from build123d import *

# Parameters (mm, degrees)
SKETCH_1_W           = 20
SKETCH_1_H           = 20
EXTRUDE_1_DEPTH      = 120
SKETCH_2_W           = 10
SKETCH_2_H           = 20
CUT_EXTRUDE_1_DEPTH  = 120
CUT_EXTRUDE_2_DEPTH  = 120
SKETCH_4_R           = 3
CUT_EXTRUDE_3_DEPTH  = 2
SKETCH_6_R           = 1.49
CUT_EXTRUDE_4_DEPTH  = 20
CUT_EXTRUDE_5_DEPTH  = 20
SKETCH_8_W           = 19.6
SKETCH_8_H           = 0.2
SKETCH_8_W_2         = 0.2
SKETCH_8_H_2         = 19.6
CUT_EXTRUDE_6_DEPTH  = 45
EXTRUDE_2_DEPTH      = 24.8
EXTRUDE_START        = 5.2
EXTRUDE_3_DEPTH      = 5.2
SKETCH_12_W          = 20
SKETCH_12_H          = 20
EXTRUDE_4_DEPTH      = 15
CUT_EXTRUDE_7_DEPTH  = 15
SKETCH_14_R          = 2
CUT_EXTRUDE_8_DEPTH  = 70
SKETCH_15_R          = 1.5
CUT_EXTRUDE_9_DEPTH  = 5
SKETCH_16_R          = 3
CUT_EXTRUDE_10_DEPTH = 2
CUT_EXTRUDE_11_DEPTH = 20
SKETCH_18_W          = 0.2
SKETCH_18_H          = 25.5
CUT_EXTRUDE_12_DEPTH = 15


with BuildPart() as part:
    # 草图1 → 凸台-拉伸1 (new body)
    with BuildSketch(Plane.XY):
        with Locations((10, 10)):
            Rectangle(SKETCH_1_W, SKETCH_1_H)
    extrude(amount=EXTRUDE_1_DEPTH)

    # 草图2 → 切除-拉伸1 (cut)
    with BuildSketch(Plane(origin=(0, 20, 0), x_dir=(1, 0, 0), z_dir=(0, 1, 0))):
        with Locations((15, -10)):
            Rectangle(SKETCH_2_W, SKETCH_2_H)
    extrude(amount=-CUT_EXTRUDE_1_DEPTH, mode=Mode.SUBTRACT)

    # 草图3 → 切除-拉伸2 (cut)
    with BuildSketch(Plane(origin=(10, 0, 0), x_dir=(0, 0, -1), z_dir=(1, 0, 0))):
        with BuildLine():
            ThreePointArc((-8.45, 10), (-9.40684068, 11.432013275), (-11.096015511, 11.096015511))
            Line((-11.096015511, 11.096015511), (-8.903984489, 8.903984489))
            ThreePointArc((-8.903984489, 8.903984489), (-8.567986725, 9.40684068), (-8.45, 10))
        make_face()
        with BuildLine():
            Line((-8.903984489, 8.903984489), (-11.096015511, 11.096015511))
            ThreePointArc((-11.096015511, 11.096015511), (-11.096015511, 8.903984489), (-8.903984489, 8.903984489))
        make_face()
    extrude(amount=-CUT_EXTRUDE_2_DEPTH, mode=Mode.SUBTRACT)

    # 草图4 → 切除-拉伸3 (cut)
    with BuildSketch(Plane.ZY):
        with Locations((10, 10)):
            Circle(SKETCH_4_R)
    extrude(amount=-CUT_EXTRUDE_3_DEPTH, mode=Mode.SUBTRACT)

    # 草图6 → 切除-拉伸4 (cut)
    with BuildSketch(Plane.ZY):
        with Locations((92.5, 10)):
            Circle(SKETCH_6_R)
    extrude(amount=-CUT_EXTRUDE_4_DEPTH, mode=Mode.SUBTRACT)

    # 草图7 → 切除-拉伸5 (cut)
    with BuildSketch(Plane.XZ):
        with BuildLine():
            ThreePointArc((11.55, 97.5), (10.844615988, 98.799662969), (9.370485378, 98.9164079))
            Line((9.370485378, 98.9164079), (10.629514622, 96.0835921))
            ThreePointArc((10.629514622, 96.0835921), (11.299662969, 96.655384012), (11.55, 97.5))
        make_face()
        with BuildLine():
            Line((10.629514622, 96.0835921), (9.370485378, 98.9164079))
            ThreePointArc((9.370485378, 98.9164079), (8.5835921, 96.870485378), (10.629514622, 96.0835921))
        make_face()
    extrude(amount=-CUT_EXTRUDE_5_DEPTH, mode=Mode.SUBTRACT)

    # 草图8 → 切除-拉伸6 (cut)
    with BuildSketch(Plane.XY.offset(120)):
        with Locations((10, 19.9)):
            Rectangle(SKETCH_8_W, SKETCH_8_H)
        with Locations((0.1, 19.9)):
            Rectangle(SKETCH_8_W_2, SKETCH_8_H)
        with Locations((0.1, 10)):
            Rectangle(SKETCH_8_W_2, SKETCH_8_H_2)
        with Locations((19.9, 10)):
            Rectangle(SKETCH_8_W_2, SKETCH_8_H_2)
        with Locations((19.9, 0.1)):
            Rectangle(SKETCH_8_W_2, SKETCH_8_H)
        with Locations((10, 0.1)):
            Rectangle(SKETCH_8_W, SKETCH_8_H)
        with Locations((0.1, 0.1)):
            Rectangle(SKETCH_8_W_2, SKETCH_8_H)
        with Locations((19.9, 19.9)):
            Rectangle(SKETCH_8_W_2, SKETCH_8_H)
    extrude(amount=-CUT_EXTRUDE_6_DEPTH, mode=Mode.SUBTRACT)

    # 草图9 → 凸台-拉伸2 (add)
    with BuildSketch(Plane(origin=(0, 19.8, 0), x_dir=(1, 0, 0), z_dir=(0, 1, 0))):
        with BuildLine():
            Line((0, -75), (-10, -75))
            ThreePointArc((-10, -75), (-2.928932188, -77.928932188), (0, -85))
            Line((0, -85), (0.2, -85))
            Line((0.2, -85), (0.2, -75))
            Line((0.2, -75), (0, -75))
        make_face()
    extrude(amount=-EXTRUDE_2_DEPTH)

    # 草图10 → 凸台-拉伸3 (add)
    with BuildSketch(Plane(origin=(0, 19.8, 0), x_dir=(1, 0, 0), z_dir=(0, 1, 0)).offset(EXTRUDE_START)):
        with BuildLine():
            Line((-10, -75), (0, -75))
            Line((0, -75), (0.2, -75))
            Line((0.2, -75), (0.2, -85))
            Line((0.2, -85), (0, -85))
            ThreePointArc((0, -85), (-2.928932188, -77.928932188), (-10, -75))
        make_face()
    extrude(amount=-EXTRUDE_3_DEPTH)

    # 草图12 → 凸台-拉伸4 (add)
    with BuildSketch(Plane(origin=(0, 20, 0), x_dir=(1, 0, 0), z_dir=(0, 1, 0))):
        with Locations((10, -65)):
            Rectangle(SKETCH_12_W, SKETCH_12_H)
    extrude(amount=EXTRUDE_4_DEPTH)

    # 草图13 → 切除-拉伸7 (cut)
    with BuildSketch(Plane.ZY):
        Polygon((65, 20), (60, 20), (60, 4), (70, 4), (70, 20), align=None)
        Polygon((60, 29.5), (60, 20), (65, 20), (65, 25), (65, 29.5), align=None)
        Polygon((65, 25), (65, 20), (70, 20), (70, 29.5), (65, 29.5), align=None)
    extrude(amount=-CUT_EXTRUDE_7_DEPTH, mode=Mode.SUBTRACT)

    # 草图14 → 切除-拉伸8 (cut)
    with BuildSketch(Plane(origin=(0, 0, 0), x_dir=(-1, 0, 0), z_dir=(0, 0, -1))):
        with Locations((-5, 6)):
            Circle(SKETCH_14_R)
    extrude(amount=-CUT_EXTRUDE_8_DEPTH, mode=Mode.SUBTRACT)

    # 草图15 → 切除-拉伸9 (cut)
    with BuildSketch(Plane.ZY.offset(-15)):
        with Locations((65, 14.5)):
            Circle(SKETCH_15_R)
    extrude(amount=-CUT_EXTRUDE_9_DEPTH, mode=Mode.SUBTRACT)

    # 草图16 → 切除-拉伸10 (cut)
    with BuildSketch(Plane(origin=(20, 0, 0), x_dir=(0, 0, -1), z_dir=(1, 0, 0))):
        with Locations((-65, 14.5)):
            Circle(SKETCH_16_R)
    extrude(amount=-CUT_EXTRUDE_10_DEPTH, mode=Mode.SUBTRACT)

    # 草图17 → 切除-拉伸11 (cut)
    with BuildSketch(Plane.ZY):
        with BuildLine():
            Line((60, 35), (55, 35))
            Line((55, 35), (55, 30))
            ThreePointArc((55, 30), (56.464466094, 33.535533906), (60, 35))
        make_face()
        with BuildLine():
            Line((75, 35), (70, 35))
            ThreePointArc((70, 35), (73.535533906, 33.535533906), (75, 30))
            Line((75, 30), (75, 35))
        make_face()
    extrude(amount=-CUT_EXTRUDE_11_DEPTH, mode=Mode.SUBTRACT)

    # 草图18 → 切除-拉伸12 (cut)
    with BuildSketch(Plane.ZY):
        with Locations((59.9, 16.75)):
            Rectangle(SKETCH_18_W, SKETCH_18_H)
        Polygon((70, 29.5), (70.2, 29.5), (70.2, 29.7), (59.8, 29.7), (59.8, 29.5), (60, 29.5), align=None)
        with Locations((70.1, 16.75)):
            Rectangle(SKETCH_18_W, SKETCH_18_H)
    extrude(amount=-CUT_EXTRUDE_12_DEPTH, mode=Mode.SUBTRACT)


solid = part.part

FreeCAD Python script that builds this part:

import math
import FreeCAD as App
import Part
import Sketcher
from FreeCAD import Vector


def add_polygon(sketch, points):
    """Adds a closed chain of lines whose ends are joined by coincident constraints."""
    first, n = sketch.GeometryCount, len(points)
    for a, b in zip(points, points[1:] + points[:1]):
        sketch.addGeometry(Part.LineSegment(App.Vector(*a, 0), App.Vector(*b, 0)), False)
    for i in range(n):
        sketch.addConstraint(Sketcher.Constraint("Coincident", first + i, 2, first + (i + 1) % n, 1))

doc = App.newDocument("Part")
params = doc.addObject("Spreadsheet::Sheet", "Params")
for row, (alias, value) in enumerate([
    ("sketch1_width", "20 mm"),
    ("pad1_length", "120 mm"),
    ("sketch2_width", "10 mm"),
    ("sketch2_height", "20 mm"),
    ("pocket1_length", "120 mm"),
    ("sketch3_radius", "1.55 mm"),
    ("pocket2_length", "120 mm"),
    ("sketch4_diameter", "6 mm"),
    ("pocket3_length", "2 mm"),
    ("sketch5_diameter", "2.98 mm"),
    ("pocket4_length", "20 mm"),
    ("sketch6_radius", "1.55 mm"),
    ("pocket5_length", "20 mm"),
    ("sketch7_width", "20 mm"),
    ("sketch7_width2", "19.6 mm"),
    ("pocket6_length", "45 mm"),
    ("sketch8_radius", "10 mm"),
    ("sketch8_height", "10 mm"),
    ("sketch8_width", "0.2 mm"),
    ("pad2_length", "24.8 mm"),
    ("sketch9_radius", "10 mm"),
    ("sketch9_height", "10 mm"),
    ("sketch9_width", "10.2 mm"),
    ("pad3_length", "5.2 mm"),
    ("sketch10_width", "20 mm"),
    ("pad4_length", "15 mm"),
    ("sketch11_height", "10 mm"),
    ("sketch11_width", "25.5 mm"),
    ("pocket7_length", "15 mm"),
    ("sketch12_diameter", "4 mm"),
    ("pocket8_length", "70 mm"),
    ("sketch13_diameter", "3 mm"),
    ("pocket9_length", "5 mm"),
    ("sketch14_diameter", "6 mm"),
    ("pocket10_length", "2 mm"),
    ("sketch15_radius", "5 mm"),
    ("pocket11_length", "20 mm"),
    ("sketch16_height", "10 mm"),
    ("sketch16_width", "25.5 mm"),
    ("sketch16_width2", "25.7 mm"),
    ("sketch16_height2", "0.2 mm"),
    ("pocket12_length", "15 mm"),
], start=1):
    params.set(f"A{row}", alias)
    params.set(f"B{row}", "=" + value)
    params.setAlias(f"B{row}", alias)

body = doc.addObject("PartDesign::Body", "Body")

sketch1 = body.newObject("Sketcher::SketchObject", "Sketch")
sketch1.AttachmentSupport = (doc.getObject("XY_Plane"), [""])
sketch1.MapMode = "FlatFace"
add_polygon(sketch1, [(0, 20), (0, 0), (20, 0), (20, 20)])
sketch1.addConstraint([
    Sketcher.Constraint("Vertical", 0),
    Sketcher.Constraint("Horizontal", 1),
    Sketcher.Constraint("Vertical", 2),
    Sketcher.Constraint("Horizontal", 3),
    Sketcher.Constraint("Coincident", 0, 2, -1, 1),
    Sketcher.Constraint("Equal", 3, 0),
    Sketcher.Constraint("DistanceX", 1, 1, 1, 2, 20.0),
])
sketch1.setExpression("Constraints[10]", "Params.sketch1_width")
pad1 = body.newObject("PartDesign::Pad", "Pad")
pad1.Profile = sketch1
pad1.setExpression("Length", "Params.pad1_length")

sketch2 = body.newObject("Sketcher::SketchObject", "Sketch001")
sketch2.AttachmentSupport = (doc.getObject("XZ_Plane"), [""])
sketch2.MapMode = "FlatFace"
sketch2.AttachmentOffset = App.Placement(Vector(0, 0, -20), App.Rotation())
add_polygon(sketch2, [(10, 0), (10, 20), (20, 20), (20, 0)])
sketch2.addConstraint([
    Sketcher.Constraint("Vertical", 0),
    Sketcher.Constraint("Horizontal", 1),
    Sketcher.Constraint("Vertical", 2),
    Sketcher.Constraint("Horizontal", 3),
    Sketcher.Constraint("PointOnObject", 2, 2, -1),
    Sketcher.Constraint("DistanceX", 1, 1, 1, 2, 10.0),
    Sketcher.Constraint("DistanceY", 0, 1, 0, 2, 20.0),
    Sketcher.Constraint("DistanceX", -1, 1, 0, 2, 10.0),
])
sketch2.setExpression("Constraints[9]", "Params.sketch2_width")
sketch2.setExpression("Constraints[10]", "Params.sketch2_height")
pocket1 = body.newObject("PartDesign::Pocket", "Pocket")
pocket1.Profile = sketch2
pocket1.setExpression("Length", "Params.pocket1_length")
pocket1.Reversed = True

sketch3 = body.newObject("Sketcher::SketchObject", "Sketch002")
sketch3.AttachmentSupport = (doc.getObject("YZ_Plane"), [""])
sketch3.MapMode = "FlatFace"
sketch3.AttachmentOffset = App.Placement(Vector(0, 0, 10), App.Rotation())
sketch3.addGeometry([
    Part.ArcOfCircle(Part.Circle(Vector(10, 10, 0), Vector(0, 0, 1), 1.6), math.radians(-90), math.radians(45)),
    Part.ArcOfCircle(Part.Circle(Vector(10, 10, 0), Vector(0, 0, 1), 1.6), math.radians(45), math.radians(225)),
    Part.ArcOfCircle(Part.Circle(Vector(10, 10, 0), Vector(0, 0, 1), 1.6), math.radians(-135), math.radians(-90)),
], False)
sketch3.addConstraint([
    Sketcher.Constraint("Tangent", 0, 2, 1, 1),
    Sketcher.Constraint("Tangent", 1, 2, 2, 1),
    Sketcher.Constraint("Tangent", 2, 2, 0, 1),
    Sketcher.Constraint("Vertical", 1, 3, 2, 2),
    Sketcher.Constraint("Radius", 0, 1.55),
    Sketcher.Constraint("DistanceX", -1, 1, 0, 3, 10.0),
    Sketcher.Constraint("DistanceY", -1, 1, 0, 3, 10.0),
    Sketcher.Constraint("DistanceX", 1, 2, 0, 2, 2.192031),
    Sketcher.Constraint("DistanceX", -1, 1, 0, 2, 11.096016),
])
sketch3.setExpression("Constraints[4]", "Params.sketch3_radius")
pocket2 = body.newObject("PartDesign::Pocket", "Pocket001")
pocket2.Profile = sketch3
pocket2.setExpression("Length", "Params.pocket2_length")

sketch4 = body.newObject("Sketcher::SketchObject", "Sketch003")
sketch4.AttachmentSupport = (doc.getObject("YZ_Plane"), [""])
sketch4.MapMode = "FlatFace"
sketch4.addGeometry(Part.Circle(Vector(10, 10, 0), Vector(0, 0, 1), 3), False)
sketch4.addConstraint([
    Sketcher.Constraint("Diameter", 0, 6.0),
    Sketcher.Constraint("DistanceX", -1, 1, 0, 3, 10.0),
    Sketcher.Constraint("DistanceY", -1, 1, 0, 3, 10.0),
])
sketch4.setExpression("Constraints[0]", "Params.sketch4_diameter")
pocket3 = body.newObject("PartDesign::Pocket", "Pocket002")
pocket3.Profile = sketch4
pocket3.setExpression("Length", "Params.pocket3_length")
pocket3.Reversed = True

sketch5 = body.newObject("Sketcher::SketchObject", "Sketch004")
sketch5.AttachmentSupport = (doc.getObject("YZ_Plane"), [""])
sketch5.MapMode = "FlatFace"
sketch5.addGeometry(Part.Circle(Vector(10, 92.5, 0), Vector(0, 0, 1), 1.5), False)
sketch5.addConstraint([
    Sketcher.Constraint("Diameter", 0, 2.98),
    Sketcher.Constraint("DistanceX", -1, 1, 0, 3, 10.0),
    Sketcher.Constraint("DistanceY", -1, 1, 0, 3, 92.5),
])
sketch5.setExpression("Constraints[0]", "Params.sketch5_diameter")
pocket4 = body.newObject("PartDesign::Pocket", "Pocket003")
pocket4.Profile = sketch5
pocket4.setExpression("Length", "Params.pocket4_length")
pocket4.Reversed = True

sketch6 = body.newObject("Sketcher::SketchObject", "Sketch005")
sketch6.AttachmentSupport = (doc.getObject("XZ_Plane"), [""])
sketch6.MapMode = "FlatFace"
sketch6.addGeometry([
    Part.ArcOfCircle(Part.Circle(Vector(10, 97.5, 0), Vector(0, 0, 1), 1.5), math.radians(0), math.radians(114)),
    Part.ArcOfCircle(Part.Circle(Vector(10, 97.5, 0), Vector(0, 0, 1), 1.6), math.radians(114), math.radians(294)),
    Part.ArcOfCircle(Part.Circle(Vector(10, 97.5, 0), Vector(0, 0, 1), 1.5), math.radians(-66), math.radians(0)),
], False)
sketch6.addConstraint([
    Sketcher.Constraint("Tangent", 0, 2, 1, 1),
    Sketcher.Constraint("Tangent", 1, 2, 2, 1),
    Sketcher.Constraint("Tangent", 2, 2, 0, 1),
    Sketcher.Constraint("Horizontal", 1, 3, 2, 2),
    Sketcher.Constraint("Radius", 0, 1.55),
    Sketcher.Constraint("DistanceX", -1, 1, 0, 3, 10.0),
    Sketcher.Constraint("DistanceY", -1, 1, 0, 3, 97.5),
    Sketcher.Constraint("DistanceX", 0, 2, 1, 2, 1.259029),
    Sketcher.Constraint("DistanceX", -1, 1, 0, 2, 9.370485),
])
sketch6.setExpression("Constraints[4]", "Params.sketch6_radius")
pocket5 = body.newObject("PartDesign::Pocket", "Pocket004")
pocket5.Profile = sketch6
pocket5.setExpression("Length", "Params.pocket5_length")

sketch7 = body.newObject("Sketcher::SketchObject", "Sketch006")
sketch7.AttachmentSupport = (doc.getObject("XY_Plane"), [""])
sketch7.MapMode = "FlatFace"
sketch7.AttachmentOffset = App.Placement(Vector(0, 0, 120), App.Rotation())
add_polygon(sketch7, [(20, 0), (20, 20), (0, 20), (0, 0)])
add_polygon(sketch7, [(0, 20), (20, 20), (20, 0), (0, 0)])
sketch7.addConstraint([
    Sketcher.Constraint("Vertical", 0),
    Sketcher.Constraint("Horizontal", 1),
    Sketcher.Constraint("Vertical", 2),
    Sketcher.Constraint("Horizontal", 3),
    Sketcher.Constraint("Horizontal", 4),
    Sketcher.Constraint("Vertical", 5),
    Sketcher.Constraint("Horizontal", 6),
    Sketcher.Constraint("Vertical", 7),
    Sketcher.Constraint("Coincident", 2, 2, -1, 1),
    Sketcher.Constraint("Equal", 3, 0),
    Sketcher.Constraint("Equal", 6, 5),
    Sketcher.Constraint("DistanceX", 1, 2, 1, 1, 20.0),
    Sketcher.Constraint("DistanceX", 4, 1, 4, 2, 19.6),
    Sketcher.Constraint("DistanceX", -1, 1, 4, 2, 19.8),
    Sketcher.Constraint("DistanceY", -1, 1, 4, 2, 19.8),
])
sketch7.setExpression("Constraints[19]", "Params.sketch7_width")
sketch7.setExpression("Constraints[20]", "Params.sketch7_width2")
pocket6 = body.newObject("PartDesign::Pocket", "Pocket005")
pocket6.Profile = sketch7
pocket6.setExpression("Length", "Params.pocket6_length")

sketch8 = body.newObject("Sketcher::SketchObject", "Sketch007")
sketch8.AttachmentSupport = (doc.getObject("XZ_Plane"), [""])
sketch8.MapMode = "FlatFace"
sketch8.AttachmentOffset = App.Placement(Vector(0, 0, -19.8), App.Rotation())
sketch8.addGeometry([
    Part.ArcOfCircle(Part.Circle(Vector(-10, 85, 0), Vector(0, 0, 1), 10), math.radians(-90), math.radians(0)),
    Part.LineSegment(Vector(0, 85, 0), Vector(0.2, 85, 0)),
    Part.LineSegment(Vector(0.2, 85, 0), Vector(0.2, 75, 0)),
    Part.LineSegment(Vector(0.2, 75, 0), Vector(-10, 75, 0)),
], False)
sketch8.addConstraint([
    Sketcher.Constraint("Coincident", 0, 2, 1, 1),
    Sketcher.Constraint("Coincident", 1, 2, 2, 1),
    Sketcher.Constraint("Coincident", 2, 2, 3, 1),
    Sketcher.Constraint("Tangent", 3, 2, 0, 1),
    Sketcher.Constraint("Horizontal", 1),
    Sketcher.Constraint("Vertical", 2),
    Sketcher.Constraint("Horizontal", 3),
    Sketcher.Constraint("PointOnObject", 0, 2, -2),
    Sketcher.Constraint("Radius", 0, 10.0),
    Sketcher.Constraint("DistanceY", 2, 2, 2, 1, 10.0),
    Sketcher.Constraint("DistanceX", 1, 1, 1, 2, 0.2),
    Sketcher.Constraint("DistanceY", -1, 1, 0, 3, 85.0),
])
sketch8.setExpression("Constraints[8]", "Params.sketch8_radius")
sketch8.setExpression("Constraints[9]", "Params.sketch8_height")
sketch8.setExpression("Constraints[10]", "Params.sketch8_width")
pad2 = body.newObject("PartDesign::Pad", "Pad001")
pad2.Profile = sketch8
pad2.setExpression("Length", "Params.pad2_length")

sketch9 = body.newObject("Sketcher::SketchObject", "Sketch008")
sketch9.AttachmentSupport = (doc.getObject("XZ_Plane"), [""])
sketch9.MapMode = "FlatFace"
sketch9.AttachmentOffset = App.Placement(Vector(0, 0, -25), App.Rotation())
sketch9.addGeometry([
    Part.LineSegment(Vector(0.2, 75, 0), Vector(-10, 75, 0)),
    Part.ArcOfCircle(Part.Circle(Vector(-10, 85, 0), Vector(0, 0, 1), 10), math.radians(-90), math.radians(0)),
    Part.LineSegment(Vector(0, 85, 0), Vector(0.2, 85, 0)),
    Part.LineSegment(Vector(0.2, 85, 0), Vector(0.2, 75, 0)),
], False)
sketch9.addConstraint([
    Sketcher.Constraint("Tangent", 0, 2, 1, 1),
    Sketcher.Constraint("Coincident", 1, 2, 2, 1),
    Sketcher.Constraint("Coincident", 2, 2, 3, 1),
    Sketcher.Constraint("Coincident", 3, 2, 0, 1),
    Sketcher.Constraint("Horizontal", 0),
    Sketcher.Constraint("Horizontal", 2),
    Sketcher.Constraint("Vertical", 3),
    Sketcher.Constraint("PointOnObject", 1, 2, -2),
    Sketcher.Constraint("Radius", 1, 10.0),
    Sketcher.Constraint("DistanceY", 3, 2, 3, 1, 10.0),
    Sketcher.Constraint("DistanceX", 0, 2, 0, 1, 10.2),
    Sketcher.Constraint("DistanceY", -1, 1, 1, 3, 85.0),
])
sketch9.setExpression("Constraints[8]", "Params.sketch9_radius")
sketch9.setExpression("Constraints[9]", "Params.sketch9_height")
sketch9.setExpression("Constraints[10]", "Params.sketch9_width")
pad3 = body.newObject("PartDesign::Pad", "Pad002")
pad3.Profile = sketch9
pad3.setExpression("Length", "Params.pad3_length")

sketch10 = body.newObject("Sketcher::SketchObject", "Sketch009")
sketch10.AttachmentSupport = (doc.getObject("XZ_Plane"), [""])
sketch10.MapMode = "FlatFace"
sketch10.AttachmentOffset = App.Placement(Vector(0, 0, -20), App.Rotation())
add_polygon(sketch10, [(0, 55), (0, 75), (20, 75), (20, 55)])
sketch10.addConstraint([
    Sketcher.Constraint("Vertical", 0),
    Sketcher.Constraint("Horizontal", 1),
    Sketcher.Constraint("Vertical", 2),
    Sketcher.Constraint("Horizontal", 3),
    Sketcher.Constraint("PointOnObject", 0, 2, -2),
    Sketcher.Constraint("Equal", 3, 0),
    Sketcher.Constraint("DistanceX", 1, 1, 1, 2, 20.0),
    Sketcher.Constraint("DistanceY", -1, 1, 0, 2, 75.0),
])
sketch10.setExpression("Constraints[10]", "Params.sketch10_width")
pad4 = body.newObject("PartDesign::Pad", "Pad003")
pad4.Profile = sketch10
pad4.setExpression("Length", "Params.pad4_length")
pad4.Reversed = True

sketch11 = body.newObject("Sketcher::SketchObject", "Sketch010")
sketch11.AttachmentSupport = (doc.getObject("YZ_Plane"), [""])
sketch11.MapMode = "FlatFace"
add_polygon(sketch11, [(4, 60), (4, 70), (30, 70), (30, 60)])
sketch11.addConstraint([
    Sketcher.Constraint("Vertical", 0),
    Sketcher.Constraint("Horizontal", 1),
    Sketcher.Constraint("Vertical", 2),
    Sketcher.Constraint("Horizontal", 3),
    Sketcher.Constraint("DistanceY", 0, 1, 0, 2, 10.0),
    Sketcher.Constraint("DistanceX", 1, 1, 1, 2, 25.5),
    Sketcher.Constraint("DistanceX", -1, 1, 0, 2, 4.0),
    Sketcher.Constraint("DistanceY", -1, 1, 0, 2, 70.0),
])
sketch11.setExpression("Constraints[8]", "Params.sketch11_height")
sketch11.setExpression("Constraints[9]", "Params.sketch11_width")
pocket7 = body.newObject("PartDesign::Pocket", "Pocket006")
pocket7.Profile = sketch11
pocket7.setExpression("Length", "Params.pocket7_length")
pocket7.Reversed = True

sketch12 = body.newObject("Sketcher::SketchObject", "Sketch011")
sketch12.AttachmentSupport = (doc.getObject("XY_Plane"), [""])
sketch12.MapMode = "FlatFace"
sketch12.addGeometry(Part.Circle(Vector(5, 6, 0), Vector(0, 0, 1), 2), False)
sketch12.addConstraint([
    Sketcher.Constraint("Diameter", 0, 4.0),
    Sketcher.Constraint("DistanceX", -1, 1, 0, 3, 5.0),
    Sketcher.Constraint("DistanceY", -1, 1, 0, 3, 6.0),
])
sketch12.setExpression("Constraints[0]", "Params.sketch12_diameter")
pocket8 = body.newObject("PartDesign::Pocket", "Pocket007")
pocket8.Profile = sketch12
pocket8.setExpression("Length", "Params.pocket8_length")
pocket8.Reversed = True

sketch13 = body.newObject("Sketcher::SketchObject", "Sketch012")
sketch13.AttachmentSupport = (doc.getObject("YZ_Plane"), [""])
sketch13.MapMode = "FlatFace"
sketch13.AttachmentOffset = App.Placement(Vector(0, 0, 15), App.Rotation())
sketch13.addGeometry(Part.Circle(Vector(14.5, 65, 0), Vector(0, 0, 1), 1.5), False)
sketch13.addConstraint([
    Sketcher.Constraint("Diameter", 0, 3.0),
    Sketcher.Constraint("DistanceY", -1, 1, 0, 3, 65.0),
    Sketcher.Constraint("DistanceX", -1, 1, 0, 3, 14.5),
])
sketch13.setExpression("Constraints[0]", "Params.sketch13_diameter")
pocket9 = body.newObject("PartDesign::Pocket", "Pocket008")
pocket9.Profile = sketch13
pocket9.setExpression("Length", "Params.pocket9_length")
pocket9.Reversed = True

sketch14 = body.newObject("Sketcher::SketchObject", "Sketch013")
sketch14.AttachmentSupport = (doc.getObject("YZ_Plane"), [""])
sketch14.MapMode = "FlatFace"
sketch14.AttachmentOffset = App.Placement(Vector(0, 0, 20), App.Rotation())
sketch14.addGeometry(Part.Circle(Vector(14.5, 65, 0), Vector(0, 0, 1), 3), False)
sketch14.addConstraint([
    Sketcher.Constraint("Diameter", 0, 6.0),
    Sketcher.Constraint("DistanceY", -1, 1, 0, 3, 65.0),
    Sketcher.Constraint("DistanceX", -1, 1, 0, 3, 14.5),
])
sketch14.setExpression("Constraints[0]", "Params.sketch14_diameter")
pocket10 = body.newObject("PartDesign::Pocket", "Pocket009")
pocket10.Profile = sketch14
pocket10.setExpression("Length", "Params.pocket10_length")

sketch15 = body.newObject("Sketcher::SketchObject", "Sketch014")
sketch15.AttachmentSupport = (doc.getObject("YZ_Plane"), [""])
sketch15.MapMode = "FlatFace"
sketch15.addGeometry([
    Part.LineSegment(Vector(35, 60, 0), Vector(35, 55, 0)),
    Part.LineSegment(Vector(35, 55, 0), Vector(30, 55, 0)),
    Part.ArcOfCircle(Part.Circle(Vector(30, 60, 0), Vector(0, 0, 1), 5), math.radians(-90), math.radians(0)),
    Part.LineSegment(Vector(35, 75, 0), Vector(35, 70, 0)),
    Part.ArcOfCircle(Part.Circle(Vector(30, 70, 0), Vector(0, 0, 1), 5), math.radians(0), math.radians(90)),
    Part.LineSegment(Vector(30, 75, 0), Vector(35, 75, 0)),
], False)
sketch15.addConstraint([
    Sketcher.Constraint("Coincident", 0, 2, 1, 1),
    Sketcher.Constraint("Tangent", 1, 2, 2, 1),
    Sketcher.Constraint("Tangent", 2, 2, 0, 1),
    Sketcher.Constraint("Tangent", 3, 2, 4, 1),
    Sketcher.Constraint("Tangent", 4, 2, 5, 1),
    Sketcher.Constraint("Coincident", 5, 2, 3, 1),
    Sketcher.Constraint("Vertical", 0),
    Sketcher.Constraint("Horizontal", 1),
    Sketcher.Constraint("Vertical", 3),
    Sketcher.Constraint("Horizontal", 5),
    Sketcher.Constraint("Equal", 2, 4),
    Sketcher.Constraint("Vertical", 2, 3, 4, 3),
    Sketcher.Constraint("Radius", 2, 5.0),
    Sketcher.Constraint("DistanceX", -1, 1, 2, 3, 30.0),
    Sketcher.Constraint("DistanceY", -1, 1, 2, 3, 60.0),
    Sketcher.Constraint("DistanceY", -1, 1, 4, 3, 70.0),
])
sketch15.setExpression("Constraints[12]", "Params.sketch15_radius")
pocket11 = body.newObject("PartDesign::Pocket", "Pocket010")
pocket11.Profile = sketch15
pocket11.setExpression("Length", "Params.pocket11_length")
pocket11.Reversed = True

sketch16 = body.newObject("Sketcher::SketchObject", "Sketch015")
sketch16.AttachmentSupport = (doc.getObject("YZ_Plane"), [""])
sketch16.MapMode = "FlatFace"
add_polygon(sketch16, [(4, 59.8), (4, 60), (29.5, 60), (29.5, 70), (4, 70), (4, 70.2), (29.7, 70.2), (29.7, 59.8)])
sketch16.addConstraint([
    Sketcher.Constraint("Vertical", 0),
    Sketcher.Constraint("Horizontal", 1),
    Sketcher.Constraint("Vertical", 2),
    Sketcher.Constraint("Horizontal", 3),
    Sketcher.Constraint("Vertical", 4),
    Sketcher.Constraint("Horizontal", 5),
    Sketcher.Constraint("Vertical", 6),
    Sketcher.Constraint("Horizontal", 7),
    Sketcher.Constraint("Vertical", 0, 2, 3, 2),
    Sketcher.Constraint("Equal", 0, 4),
    Sketcher.Constraint("DistanceY", 2, 1, 2, 2, 10.0),
    Sketcher.Constraint("DistanceX", 1, 1, 1, 2, 25.5),
    Sketcher.Constraint("DistanceX", 5, 1, 5, 2, 25.7),
    Sketcher.Constraint("DistanceY", 0, 1, 0, 2, 0.2),
    Sketcher.Constraint("DistanceX", -1, 1, 0, 2, 4.0),
    Sketcher.Constraint("DistanceY", -1, 1, 0, 2, 60.0),
])
sketch16.setExpression("Constraints[18]", "Params.sketch16_height")
sketch16.setExpression("Constraints[19]", "Params.sketch16_width")
sketch16.setExpression("Constraints[20]", "Params.sketch16_width2")
sketch16.setExpression("Constraints[21]", "Params.sketch16_height2")
pocket12 = body.newObject("PartDesign::Pocket", "Pocket011")
pocket12.Profile = sketch16
pocket12.setExpression("Length", "Params.pocket12_length")
pocket12.Reversed = True

doc.recompute()
